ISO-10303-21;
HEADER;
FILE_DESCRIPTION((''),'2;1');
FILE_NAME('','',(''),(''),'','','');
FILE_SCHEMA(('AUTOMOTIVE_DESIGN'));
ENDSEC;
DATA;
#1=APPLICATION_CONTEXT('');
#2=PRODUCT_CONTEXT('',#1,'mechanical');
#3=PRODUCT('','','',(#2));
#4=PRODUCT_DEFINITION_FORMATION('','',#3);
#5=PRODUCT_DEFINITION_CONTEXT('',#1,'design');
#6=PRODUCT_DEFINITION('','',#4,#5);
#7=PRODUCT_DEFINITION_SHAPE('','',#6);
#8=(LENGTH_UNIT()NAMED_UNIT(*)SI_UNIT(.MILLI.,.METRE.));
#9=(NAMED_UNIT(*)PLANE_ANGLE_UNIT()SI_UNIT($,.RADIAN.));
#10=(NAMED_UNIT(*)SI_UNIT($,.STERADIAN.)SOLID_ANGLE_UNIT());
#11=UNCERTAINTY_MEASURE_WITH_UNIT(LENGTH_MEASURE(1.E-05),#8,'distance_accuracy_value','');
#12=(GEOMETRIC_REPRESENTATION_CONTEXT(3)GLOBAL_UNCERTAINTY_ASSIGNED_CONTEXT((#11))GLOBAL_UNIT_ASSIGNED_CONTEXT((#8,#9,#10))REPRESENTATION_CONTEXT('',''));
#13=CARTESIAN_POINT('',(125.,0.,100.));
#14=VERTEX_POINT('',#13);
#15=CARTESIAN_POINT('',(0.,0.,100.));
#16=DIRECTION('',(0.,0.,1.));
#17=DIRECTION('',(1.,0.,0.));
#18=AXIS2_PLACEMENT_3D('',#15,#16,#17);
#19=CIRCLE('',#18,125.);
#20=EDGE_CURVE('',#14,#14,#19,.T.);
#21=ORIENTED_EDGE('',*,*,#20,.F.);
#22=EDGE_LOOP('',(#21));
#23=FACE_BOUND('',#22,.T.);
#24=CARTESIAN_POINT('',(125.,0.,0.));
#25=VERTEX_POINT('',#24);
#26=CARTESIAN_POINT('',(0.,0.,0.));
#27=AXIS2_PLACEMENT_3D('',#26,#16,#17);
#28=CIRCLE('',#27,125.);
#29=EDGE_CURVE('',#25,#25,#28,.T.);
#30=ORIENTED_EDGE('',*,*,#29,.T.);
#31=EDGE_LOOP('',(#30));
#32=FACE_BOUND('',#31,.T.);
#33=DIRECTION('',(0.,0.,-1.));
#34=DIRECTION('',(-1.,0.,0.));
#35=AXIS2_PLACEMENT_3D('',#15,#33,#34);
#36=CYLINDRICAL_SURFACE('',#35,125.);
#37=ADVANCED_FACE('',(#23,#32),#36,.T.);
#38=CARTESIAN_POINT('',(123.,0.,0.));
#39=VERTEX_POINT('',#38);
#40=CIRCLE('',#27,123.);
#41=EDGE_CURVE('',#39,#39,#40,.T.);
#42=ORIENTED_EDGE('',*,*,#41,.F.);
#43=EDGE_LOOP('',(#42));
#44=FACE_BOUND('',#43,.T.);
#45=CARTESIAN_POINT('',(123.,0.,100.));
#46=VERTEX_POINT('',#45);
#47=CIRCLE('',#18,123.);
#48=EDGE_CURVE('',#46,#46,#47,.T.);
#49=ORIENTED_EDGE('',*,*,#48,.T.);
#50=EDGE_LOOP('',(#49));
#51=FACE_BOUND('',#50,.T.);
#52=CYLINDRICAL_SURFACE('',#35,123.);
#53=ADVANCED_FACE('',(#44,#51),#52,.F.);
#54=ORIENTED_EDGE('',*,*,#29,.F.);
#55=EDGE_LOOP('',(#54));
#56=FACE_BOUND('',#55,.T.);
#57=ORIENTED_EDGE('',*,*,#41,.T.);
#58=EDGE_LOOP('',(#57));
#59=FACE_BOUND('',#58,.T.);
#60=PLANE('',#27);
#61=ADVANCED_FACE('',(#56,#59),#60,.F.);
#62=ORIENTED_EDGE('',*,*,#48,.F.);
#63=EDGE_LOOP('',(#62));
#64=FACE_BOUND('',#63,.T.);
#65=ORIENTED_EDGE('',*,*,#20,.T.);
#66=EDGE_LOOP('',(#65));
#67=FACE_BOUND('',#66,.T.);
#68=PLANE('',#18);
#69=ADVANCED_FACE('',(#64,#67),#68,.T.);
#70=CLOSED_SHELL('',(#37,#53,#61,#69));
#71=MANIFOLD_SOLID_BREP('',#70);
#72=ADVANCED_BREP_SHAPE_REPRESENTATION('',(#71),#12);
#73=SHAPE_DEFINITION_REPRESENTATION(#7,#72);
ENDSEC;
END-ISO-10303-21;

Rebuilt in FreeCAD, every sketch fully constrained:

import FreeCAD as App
import Part
import Sketcher

V = App.Vector
Q = App.Units.Quantity

doc = App.newDocument("Part")
body = doc.addObject("PartDesign::Body", "Body")

# Sketch on XY plane
sketch1 = body.newObject("Sketcher::SketchObject", "Sketch")
sketch1.AttachmentSupport = (doc.getObject("XY_Plane"), [""])
sketch1.MapMode = "FlatFace"
sketch1.addGeometry([
    Part.Circle(V(0, 0, 0), V(0, 0, 1), 125),
    Part.Circle(V(0, 0, 0), V(0, 0, 1), 123),
], False)
sketch1.addConstraint([
    Sketcher.Constraint("Coincident", 0, 3, -1, 1),
    Sketcher.Constraint("Coincident", 1, 3, -1, 1),
    Sketcher.Constraint("Diameter", 0, Q("250 mm")),
    Sketcher.Constraint("Diameter", 1, Q("246 mm")),
])
pad1 = body.newObject("PartDesign::Pad", "Pad")
pad1.Profile = sketch1
pad1.Length = 100

doc.recompute()
